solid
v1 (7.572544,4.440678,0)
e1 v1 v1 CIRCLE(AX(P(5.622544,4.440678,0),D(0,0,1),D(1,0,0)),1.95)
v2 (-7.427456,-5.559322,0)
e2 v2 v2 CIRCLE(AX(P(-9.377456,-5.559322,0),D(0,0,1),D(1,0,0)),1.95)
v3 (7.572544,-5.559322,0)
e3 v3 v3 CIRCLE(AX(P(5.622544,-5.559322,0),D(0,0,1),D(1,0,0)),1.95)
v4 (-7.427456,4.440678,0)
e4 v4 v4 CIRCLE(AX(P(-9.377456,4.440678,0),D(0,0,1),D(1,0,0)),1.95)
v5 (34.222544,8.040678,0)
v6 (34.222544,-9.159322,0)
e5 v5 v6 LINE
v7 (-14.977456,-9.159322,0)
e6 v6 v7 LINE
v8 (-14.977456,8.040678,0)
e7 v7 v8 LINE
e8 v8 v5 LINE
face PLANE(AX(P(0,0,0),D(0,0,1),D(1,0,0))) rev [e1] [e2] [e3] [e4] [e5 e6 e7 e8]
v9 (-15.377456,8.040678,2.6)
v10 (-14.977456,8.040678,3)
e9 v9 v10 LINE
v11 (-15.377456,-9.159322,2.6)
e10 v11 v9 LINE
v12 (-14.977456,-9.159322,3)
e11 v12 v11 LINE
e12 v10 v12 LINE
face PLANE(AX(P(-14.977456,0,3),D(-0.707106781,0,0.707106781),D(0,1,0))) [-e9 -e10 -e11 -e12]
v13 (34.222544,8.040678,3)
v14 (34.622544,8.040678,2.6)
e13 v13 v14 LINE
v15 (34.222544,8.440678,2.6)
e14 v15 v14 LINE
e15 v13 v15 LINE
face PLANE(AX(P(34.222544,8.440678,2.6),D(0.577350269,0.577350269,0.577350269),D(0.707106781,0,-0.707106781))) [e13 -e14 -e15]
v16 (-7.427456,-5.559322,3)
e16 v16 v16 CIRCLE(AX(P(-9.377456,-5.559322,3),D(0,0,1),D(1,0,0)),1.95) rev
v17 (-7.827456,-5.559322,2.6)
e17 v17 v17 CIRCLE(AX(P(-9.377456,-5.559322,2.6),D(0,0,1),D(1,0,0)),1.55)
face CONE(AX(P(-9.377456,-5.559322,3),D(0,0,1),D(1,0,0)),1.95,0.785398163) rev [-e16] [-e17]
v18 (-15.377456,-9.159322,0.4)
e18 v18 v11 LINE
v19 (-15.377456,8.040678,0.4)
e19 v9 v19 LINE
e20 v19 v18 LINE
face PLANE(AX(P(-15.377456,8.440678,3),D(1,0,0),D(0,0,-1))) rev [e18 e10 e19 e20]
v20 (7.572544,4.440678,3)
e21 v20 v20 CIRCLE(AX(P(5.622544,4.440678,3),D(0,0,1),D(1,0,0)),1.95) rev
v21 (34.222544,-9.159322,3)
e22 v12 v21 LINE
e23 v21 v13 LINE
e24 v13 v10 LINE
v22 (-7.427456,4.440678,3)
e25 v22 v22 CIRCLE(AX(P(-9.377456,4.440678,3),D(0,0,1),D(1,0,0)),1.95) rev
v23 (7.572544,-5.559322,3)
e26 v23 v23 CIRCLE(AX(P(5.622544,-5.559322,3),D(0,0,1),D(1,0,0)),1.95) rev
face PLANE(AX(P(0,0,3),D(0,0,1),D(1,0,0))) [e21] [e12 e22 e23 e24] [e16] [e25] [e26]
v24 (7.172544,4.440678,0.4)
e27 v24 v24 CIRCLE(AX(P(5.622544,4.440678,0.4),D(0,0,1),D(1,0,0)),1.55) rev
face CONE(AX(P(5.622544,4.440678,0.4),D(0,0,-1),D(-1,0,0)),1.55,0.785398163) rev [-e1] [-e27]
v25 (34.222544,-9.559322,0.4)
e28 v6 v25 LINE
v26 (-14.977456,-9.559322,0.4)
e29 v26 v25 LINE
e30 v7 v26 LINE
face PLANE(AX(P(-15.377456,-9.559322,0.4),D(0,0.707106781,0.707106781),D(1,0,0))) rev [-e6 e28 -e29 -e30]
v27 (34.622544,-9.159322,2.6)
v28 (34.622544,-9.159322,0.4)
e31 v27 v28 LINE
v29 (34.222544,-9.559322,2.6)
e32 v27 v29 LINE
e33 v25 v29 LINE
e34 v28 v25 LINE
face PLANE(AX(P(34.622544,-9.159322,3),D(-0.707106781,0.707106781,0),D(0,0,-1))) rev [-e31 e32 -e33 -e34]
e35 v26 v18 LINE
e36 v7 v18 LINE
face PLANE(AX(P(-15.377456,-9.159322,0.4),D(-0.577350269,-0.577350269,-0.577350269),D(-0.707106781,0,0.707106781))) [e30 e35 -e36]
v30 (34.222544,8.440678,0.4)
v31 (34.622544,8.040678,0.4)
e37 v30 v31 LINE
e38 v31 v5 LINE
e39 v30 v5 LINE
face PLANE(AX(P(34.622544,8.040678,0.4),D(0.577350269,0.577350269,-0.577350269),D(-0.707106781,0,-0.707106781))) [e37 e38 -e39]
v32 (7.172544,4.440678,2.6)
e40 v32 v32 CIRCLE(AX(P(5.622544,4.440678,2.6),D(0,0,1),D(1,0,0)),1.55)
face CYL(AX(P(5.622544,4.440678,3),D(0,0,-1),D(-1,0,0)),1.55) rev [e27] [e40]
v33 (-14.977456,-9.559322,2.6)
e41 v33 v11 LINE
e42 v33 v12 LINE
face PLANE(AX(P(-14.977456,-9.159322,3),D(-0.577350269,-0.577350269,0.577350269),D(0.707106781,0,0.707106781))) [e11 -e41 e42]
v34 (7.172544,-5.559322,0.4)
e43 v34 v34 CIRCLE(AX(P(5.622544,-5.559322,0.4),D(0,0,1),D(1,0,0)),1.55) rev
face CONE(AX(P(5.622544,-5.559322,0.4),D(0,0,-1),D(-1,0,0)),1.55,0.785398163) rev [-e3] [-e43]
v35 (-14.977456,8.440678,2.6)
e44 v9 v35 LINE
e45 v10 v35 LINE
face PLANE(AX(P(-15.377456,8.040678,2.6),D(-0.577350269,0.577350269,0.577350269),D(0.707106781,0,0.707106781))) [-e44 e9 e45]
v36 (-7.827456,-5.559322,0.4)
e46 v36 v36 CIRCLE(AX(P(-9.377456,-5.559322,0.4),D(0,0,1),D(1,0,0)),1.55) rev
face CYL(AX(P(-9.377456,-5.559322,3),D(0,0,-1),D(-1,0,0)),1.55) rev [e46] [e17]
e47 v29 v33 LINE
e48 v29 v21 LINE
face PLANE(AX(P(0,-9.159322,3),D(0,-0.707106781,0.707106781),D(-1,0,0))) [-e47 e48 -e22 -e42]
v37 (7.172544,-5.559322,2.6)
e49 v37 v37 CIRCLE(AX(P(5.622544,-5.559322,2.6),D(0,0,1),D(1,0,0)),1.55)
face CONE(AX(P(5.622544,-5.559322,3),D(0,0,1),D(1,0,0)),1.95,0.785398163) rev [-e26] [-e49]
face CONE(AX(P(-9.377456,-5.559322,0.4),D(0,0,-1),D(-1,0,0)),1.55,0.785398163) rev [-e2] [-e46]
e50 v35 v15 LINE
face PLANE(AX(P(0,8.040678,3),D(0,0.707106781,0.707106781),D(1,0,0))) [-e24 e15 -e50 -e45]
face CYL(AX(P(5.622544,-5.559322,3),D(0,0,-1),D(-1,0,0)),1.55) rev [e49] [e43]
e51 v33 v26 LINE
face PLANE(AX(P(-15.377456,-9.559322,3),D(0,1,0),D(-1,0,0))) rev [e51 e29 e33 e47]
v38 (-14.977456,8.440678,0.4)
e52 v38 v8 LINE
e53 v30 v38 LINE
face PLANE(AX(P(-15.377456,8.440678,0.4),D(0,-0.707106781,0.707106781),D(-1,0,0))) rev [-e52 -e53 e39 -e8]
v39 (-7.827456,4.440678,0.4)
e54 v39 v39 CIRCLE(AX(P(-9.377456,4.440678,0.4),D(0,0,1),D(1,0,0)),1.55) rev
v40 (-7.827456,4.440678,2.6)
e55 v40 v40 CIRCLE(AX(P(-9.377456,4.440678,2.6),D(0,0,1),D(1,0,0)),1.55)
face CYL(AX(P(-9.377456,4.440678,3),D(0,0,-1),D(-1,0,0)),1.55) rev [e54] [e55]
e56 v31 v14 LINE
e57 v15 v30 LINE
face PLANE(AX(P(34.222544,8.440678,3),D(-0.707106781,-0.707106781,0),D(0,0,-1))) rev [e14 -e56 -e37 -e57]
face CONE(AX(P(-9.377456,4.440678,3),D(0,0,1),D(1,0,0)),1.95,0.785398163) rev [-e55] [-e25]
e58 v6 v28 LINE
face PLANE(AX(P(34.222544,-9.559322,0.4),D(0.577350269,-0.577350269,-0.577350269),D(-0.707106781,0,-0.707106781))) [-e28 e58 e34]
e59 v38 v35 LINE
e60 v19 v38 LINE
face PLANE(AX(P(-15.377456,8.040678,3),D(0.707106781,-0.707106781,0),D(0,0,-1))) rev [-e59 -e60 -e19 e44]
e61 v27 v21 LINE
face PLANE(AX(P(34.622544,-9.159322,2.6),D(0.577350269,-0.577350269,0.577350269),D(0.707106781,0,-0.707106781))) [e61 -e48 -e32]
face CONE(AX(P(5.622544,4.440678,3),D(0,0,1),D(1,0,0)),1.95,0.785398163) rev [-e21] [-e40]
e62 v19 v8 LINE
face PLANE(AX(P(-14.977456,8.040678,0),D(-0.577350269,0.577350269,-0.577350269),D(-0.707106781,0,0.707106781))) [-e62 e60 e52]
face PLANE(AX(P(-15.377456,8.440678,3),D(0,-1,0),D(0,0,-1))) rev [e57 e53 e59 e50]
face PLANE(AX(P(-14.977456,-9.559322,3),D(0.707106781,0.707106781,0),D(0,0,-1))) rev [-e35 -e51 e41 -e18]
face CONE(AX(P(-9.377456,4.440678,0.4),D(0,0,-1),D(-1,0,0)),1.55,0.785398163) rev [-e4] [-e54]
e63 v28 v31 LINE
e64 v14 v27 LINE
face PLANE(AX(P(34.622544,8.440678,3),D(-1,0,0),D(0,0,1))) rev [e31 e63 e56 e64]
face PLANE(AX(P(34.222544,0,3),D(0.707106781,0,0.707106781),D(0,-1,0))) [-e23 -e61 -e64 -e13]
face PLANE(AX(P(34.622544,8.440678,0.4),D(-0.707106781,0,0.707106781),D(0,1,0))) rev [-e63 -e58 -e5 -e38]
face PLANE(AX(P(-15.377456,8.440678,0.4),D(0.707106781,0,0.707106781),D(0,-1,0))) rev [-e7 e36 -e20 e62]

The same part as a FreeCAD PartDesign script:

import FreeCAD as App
import Part
import Sketcher

doc = App.newDocument("Part")
body = doc.addObject("PartDesign::Body", "Body")

sketch1 = body.newObject("Sketcher::SketchObject", "Sketch")
sketch1.AttachmentSupport = (doc.getObject("XY_Plane"), [""])
sketch1.MapMode = "FlatFace"
sketch1.addGeometry([
    Part.LineSegment(App.Vector(-15, 8, 0), App.Vector(-15, -10, 0)),
    Part.LineSegment(App.Vector(-15, -10, 0), App.Vector(35, -10, 0)),
    Part.LineSegment(App.Vector(35, -10, 0), App.Vector(35, 8, 0)),
    Part.LineSegment(App.Vector(35, 8, 0), App.Vector(-15, 8, 0)),
], False)
sketch1.addConstraint([
    Sketcher.Constraint("Coincident", 0, 2, 1, 1),
    Sketcher.Constraint("Coincident", 1, 2, 2, 1),
    Sketcher.Constraint("Coincident", 2, 2, 3, 1),
    Sketcher.Constraint("Coincident", 3, 2, 0, 1),
    Sketcher.Constraint("Vertical", 0),
    Sketcher.Constraint("Horizontal", 1),
    Sketcher.Constraint("Vertical", 2),
    Sketcher.Constraint("Horizontal", 3),
    Sketcher.Constraint("DistanceX", 1, 1, 1, 2, 50.0),
    Sketcher.Constraint("DistanceY", 0, 2, 0, 1, 18.0),
    Sketcher.Constraint("DistanceX", 0, 2, -1, 1, 15.377456),
    Sketcher.Constraint("DistanceY", 0, 2, -1, 1, 9.559322),
])
pad1 = body.newObject("PartDesign::Pad", "Pad")
pad1.Profile = sketch1
pad1.Length = 3

sketch2 = body.newObject("Sketcher::SketchObject", "Sketch001")
sketch2.AttachmentSupport = (doc.getObject("XY_Plane"), [""])
sketch2.MapMode = "FlatFace"
sketch2.addGeometry([
    Part.Circle(App.Vector(-9.4, 4.4, 0), App.Vector(0, 0, 1), 1.6),
    Part.Circle(App.Vector(5.6, 4.4, 0), App.Vector(0, 0, 1), 1.6),
    Part.Circle(App.Vector(5.6, -5.6, 0), App.Vector(0, 0, 1), 1.6),
    Part.Circle(App.Vector(-9.4, -5.6, 0), App.Vector(0, 0, 1), 1.6),
], False)
sketch2.addConstraint([
    Sketcher.Constraint("Equal", 0, 1),
    Sketcher.Constraint("Equal", 1, 2),
    Sketcher.Constraint("Equal", 2, 3),
    Sketcher.Constraint("Horizontal", 0, 3, 1, 3),
    Sketcher.Constraint("Horizontal", 2, 3, 3, 3),
    Sketcher.Constraint("Vertical", 1, 3, 2, 3),
    Sketcher.Constraint("Vertical", 0, 3, 3, 3),
    Sketcher.Constraint("Diameter", 0, 3.1),
    Sketcher.Constraint("DistanceX", 0, 3, 1, 3, 15.0),
    Sketcher.Constraint("DistanceY", 2, 3, 1, 3, 10.0),
    Sketcher.Constraint("DistanceX", 0, 3, -1, 1, 9.377456),
    Sketcher.Constraint("DistanceY", -1, 1, 0, 3, 4.440678),
])
pocket1 = body.newObject("PartDesign::Pocket", "Pocket")
pocket1.Profile = sketch2
pocket1.Type = "ThroughAll"
pocket1.Reversed = True
doc.recompute()

chamfer = body.newObject("PartDesign::Chamfer", "Chamfer")
chamfer.Base = (pocket1, ["Edge1"])
chamfer.UseAllEdges = True
chamfer.Size = 0.4

doc.recompute()
